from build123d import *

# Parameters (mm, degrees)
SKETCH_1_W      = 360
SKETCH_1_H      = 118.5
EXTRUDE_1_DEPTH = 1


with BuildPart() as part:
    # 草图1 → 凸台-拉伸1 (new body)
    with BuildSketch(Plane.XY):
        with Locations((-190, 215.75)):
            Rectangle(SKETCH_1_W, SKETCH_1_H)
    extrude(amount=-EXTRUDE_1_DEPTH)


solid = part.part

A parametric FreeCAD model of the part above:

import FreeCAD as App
import Part
import Sketcher

V = App.Vector


def add_polygon(sketch, points):
    """Adds a closed chain of lines whose ends are joined by coincident constraints."""
    first, n = sketch.GeometryCount, len(points)
    for a, b in zip(points, points[1:] + points[:1]):
        sketch.addGeometry(Part.LineSegment(App.Vector(*a, 0), App.Vector(*b, 0)), False)
    for i in range(n):
        sketch.addConstraint(Sketcher.Constraint("Coincident", first + i, 2, first + (i + 1) % n, 1))

doc = App.newDocument("Part")
body = doc.addObject("PartDesign::Body", "Body")

# Sketch on XY plane
sketch1 = body.newObject("Sketcher::SketchObject", "Sketch")
sketch1.AttachmentSupport = (doc.getObject("XY_Plane"), [""])
sketch1.MapMode = "FlatFace"
add_polygon(sketch1, [(-370, 275), (-370, 156), (-10, 156), (-10, 275)])  # lines 0-3
sketch1.addConstraint([
    Sketcher.Constraint("Vertical", 0),
    Sketcher.Constraint("Horizontal", 1),
    Sketcher.Constraint("Vertical", 2),
    Sketcher.Constraint("Horizontal", 3),
    Sketcher.Constraint("DistanceX", 1, 1, 1, 2, 360.0),
    Sketcher.Constraint("DistanceY", 0, 2, 0, 1, 118.5),
    Sketcher.Constraint("DistanceX", 0, 2, -1, 1, 370.0),
    Sketcher.Constraint("DistanceY", -1, 1, 2, 2, 275.0),
])
pad1 = body.newObject("PartDesign::Pad", "Pad")
pad1.Profile = sketch1
pad1.Length = 1
pad1.Reversed = True

doc.recompute()
